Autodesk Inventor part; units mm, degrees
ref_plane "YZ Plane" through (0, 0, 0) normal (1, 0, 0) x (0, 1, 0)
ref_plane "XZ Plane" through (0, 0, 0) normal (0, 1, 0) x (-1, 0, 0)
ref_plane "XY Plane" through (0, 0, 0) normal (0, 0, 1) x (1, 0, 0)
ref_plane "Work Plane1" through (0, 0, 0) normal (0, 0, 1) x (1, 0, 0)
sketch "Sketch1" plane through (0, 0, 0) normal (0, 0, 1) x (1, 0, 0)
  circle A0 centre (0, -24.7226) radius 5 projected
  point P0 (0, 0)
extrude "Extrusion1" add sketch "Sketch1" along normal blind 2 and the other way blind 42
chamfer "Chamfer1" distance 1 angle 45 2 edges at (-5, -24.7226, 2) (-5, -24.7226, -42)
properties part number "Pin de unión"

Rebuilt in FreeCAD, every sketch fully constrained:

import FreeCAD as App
import Part
import Sketcher

V = App.Vector
Q = App.Units.Quantity


def edges_at(feature, points):
    """Names of the edges that pass closest to the given points."""
    edges = feature.Shape.Edges
    near = lambda p: min(range(len(edges)), key=lambda i: edges[i].distToShape(Part.Vertex(*p))[0])
    return sorted({f"Edge{near(p) + 1}" for p in points})

doc = App.newDocument("Part")
body = doc.addObject("PartDesign::Body", "Body")

# Sketch on XY plane
sketch1 = body.newObject("Sketcher::SketchObject", "Sketch")
sketch1.AttachmentSupport = (doc.getObject("XY_Plane"), [""])
sketch1.MapMode = "FlatFace"
sketch1.addGeometry(Part.Circle(V(0, -25, 0), V(0, 0, 1), 5), False)
sketch1.addConstraint(Sketcher.Constraint("PointOnObject", 0, 3, -2))
sketch1.addConstraint(Sketcher.Constraint("Diameter", 0, Q("10 mm")))
sketch1.addConstraint(Sketcher.Constraint("DistanceY", 0, 3, -1, 1, Q("24.7226 mm")))
pad1 = body.newObject("PartDesign::Pad", "Pad")
pad1.Profile = sketch1
pad1.Type = "TwoLengths"
pad1.Length = 2
pad1.Length2 = 42
doc.recompute()

chamfer = body.newObject("PartDesign::Chamfer", "Chamfer")
chamfer.Base = (pad1, edges_at(pad1, [(-5, -24.723, 2), (-5, -24.723, -42)]))
chamfer.Size = 1

doc.recompute()
